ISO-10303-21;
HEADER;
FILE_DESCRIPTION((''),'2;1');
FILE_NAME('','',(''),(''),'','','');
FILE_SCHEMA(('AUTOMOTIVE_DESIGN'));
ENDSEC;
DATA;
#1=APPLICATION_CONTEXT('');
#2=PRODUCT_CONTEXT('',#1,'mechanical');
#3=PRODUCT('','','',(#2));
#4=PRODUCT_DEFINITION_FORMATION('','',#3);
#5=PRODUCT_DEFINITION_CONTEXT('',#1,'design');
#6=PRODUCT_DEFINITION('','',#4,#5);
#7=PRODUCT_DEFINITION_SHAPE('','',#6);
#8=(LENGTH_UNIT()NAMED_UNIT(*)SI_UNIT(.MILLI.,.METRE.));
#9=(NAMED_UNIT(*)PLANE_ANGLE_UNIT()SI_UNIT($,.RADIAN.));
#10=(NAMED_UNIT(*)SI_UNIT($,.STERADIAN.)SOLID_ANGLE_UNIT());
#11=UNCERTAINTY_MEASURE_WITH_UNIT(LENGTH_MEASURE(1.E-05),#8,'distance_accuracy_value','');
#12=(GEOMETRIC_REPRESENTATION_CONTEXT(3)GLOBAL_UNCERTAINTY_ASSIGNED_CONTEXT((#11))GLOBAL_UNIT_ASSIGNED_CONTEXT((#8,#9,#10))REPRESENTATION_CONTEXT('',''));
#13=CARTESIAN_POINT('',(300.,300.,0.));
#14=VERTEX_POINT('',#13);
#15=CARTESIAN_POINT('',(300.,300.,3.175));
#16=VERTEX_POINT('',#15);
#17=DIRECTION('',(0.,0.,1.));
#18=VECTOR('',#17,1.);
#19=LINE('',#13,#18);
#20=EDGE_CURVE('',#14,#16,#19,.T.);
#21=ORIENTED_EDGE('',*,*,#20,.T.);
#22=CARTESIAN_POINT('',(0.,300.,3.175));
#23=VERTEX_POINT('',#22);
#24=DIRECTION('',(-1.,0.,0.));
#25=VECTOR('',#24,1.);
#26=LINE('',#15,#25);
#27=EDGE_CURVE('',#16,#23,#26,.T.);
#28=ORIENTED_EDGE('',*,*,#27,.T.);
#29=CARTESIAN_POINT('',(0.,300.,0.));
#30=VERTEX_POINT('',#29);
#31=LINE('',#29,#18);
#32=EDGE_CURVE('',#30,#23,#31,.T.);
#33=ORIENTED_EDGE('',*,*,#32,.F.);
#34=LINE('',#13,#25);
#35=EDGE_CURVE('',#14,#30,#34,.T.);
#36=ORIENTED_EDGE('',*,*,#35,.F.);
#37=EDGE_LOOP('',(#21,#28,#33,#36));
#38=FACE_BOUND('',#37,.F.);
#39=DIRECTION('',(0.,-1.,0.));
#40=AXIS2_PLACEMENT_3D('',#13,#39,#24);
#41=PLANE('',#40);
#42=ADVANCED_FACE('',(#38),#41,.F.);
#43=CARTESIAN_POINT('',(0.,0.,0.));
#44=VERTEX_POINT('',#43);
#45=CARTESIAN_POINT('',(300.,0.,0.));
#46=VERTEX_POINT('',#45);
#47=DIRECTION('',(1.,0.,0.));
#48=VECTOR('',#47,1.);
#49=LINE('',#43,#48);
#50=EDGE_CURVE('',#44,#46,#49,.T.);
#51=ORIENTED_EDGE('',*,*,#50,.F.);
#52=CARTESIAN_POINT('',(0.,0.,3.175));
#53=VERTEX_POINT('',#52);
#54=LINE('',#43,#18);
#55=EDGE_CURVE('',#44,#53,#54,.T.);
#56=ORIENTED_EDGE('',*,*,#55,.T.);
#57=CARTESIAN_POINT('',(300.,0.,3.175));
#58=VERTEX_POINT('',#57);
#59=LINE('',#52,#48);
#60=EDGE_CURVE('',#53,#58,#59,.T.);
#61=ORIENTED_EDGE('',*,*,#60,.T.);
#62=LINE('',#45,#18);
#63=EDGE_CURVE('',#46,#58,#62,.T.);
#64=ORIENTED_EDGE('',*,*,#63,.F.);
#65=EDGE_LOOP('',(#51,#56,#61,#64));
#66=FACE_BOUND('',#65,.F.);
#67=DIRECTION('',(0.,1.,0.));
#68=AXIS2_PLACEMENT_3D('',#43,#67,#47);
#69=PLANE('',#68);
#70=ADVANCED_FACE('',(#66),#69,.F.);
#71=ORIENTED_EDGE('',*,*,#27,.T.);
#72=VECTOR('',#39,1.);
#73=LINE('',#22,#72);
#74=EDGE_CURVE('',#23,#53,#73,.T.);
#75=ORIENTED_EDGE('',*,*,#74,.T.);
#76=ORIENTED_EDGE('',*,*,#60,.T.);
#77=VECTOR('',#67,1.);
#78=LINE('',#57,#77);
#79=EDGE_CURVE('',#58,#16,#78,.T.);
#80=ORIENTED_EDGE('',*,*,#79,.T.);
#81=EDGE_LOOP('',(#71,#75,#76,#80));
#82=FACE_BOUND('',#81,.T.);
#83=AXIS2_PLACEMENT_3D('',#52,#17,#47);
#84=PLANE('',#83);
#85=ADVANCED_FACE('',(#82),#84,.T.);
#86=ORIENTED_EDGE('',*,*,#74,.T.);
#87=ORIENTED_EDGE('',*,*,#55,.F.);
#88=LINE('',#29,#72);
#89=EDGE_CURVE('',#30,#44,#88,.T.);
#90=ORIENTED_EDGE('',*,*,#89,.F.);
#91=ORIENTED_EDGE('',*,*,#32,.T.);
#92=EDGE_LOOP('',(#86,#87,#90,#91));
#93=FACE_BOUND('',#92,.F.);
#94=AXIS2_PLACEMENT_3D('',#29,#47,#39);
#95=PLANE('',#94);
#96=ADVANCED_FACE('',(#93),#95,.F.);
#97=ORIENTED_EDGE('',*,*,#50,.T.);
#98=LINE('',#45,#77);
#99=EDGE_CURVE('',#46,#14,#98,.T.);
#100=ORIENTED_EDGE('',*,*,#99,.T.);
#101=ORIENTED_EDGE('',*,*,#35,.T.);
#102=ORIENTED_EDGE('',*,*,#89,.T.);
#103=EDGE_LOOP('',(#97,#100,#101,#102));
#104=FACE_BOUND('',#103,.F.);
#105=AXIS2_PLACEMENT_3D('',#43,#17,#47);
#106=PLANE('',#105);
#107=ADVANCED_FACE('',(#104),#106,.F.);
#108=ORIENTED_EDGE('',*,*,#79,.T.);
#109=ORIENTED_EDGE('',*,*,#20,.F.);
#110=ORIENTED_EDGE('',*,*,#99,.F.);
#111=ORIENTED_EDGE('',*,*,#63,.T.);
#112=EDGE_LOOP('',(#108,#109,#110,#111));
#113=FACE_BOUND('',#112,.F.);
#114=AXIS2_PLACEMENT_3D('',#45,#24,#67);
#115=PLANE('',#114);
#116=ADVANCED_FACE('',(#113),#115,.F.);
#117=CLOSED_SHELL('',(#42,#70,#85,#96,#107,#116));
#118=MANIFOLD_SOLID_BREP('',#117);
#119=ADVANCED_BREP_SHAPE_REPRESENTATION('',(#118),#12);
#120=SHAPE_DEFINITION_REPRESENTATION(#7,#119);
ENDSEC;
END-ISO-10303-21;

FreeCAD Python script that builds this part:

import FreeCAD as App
import Part
import Sketcher
from FreeCAD import Vector


def add_polygon(sketch, points):
    """Adds a closed chain of lines whose ends are joined by coincident constraints."""
    first, n = sketch.GeometryCount, len(points)
    for a, b in zip(points, points[1:] + points[:1]):
        sketch.addGeometry(Part.LineSegment(App.Vector(*a, 0), App.Vector(*b, 0)), False)
    for i in range(n):
        sketch.addConstraint(Sketcher.Constraint("Coincident", first + i, 2, first + (i + 1) % n, 1))

doc = App.newDocument("Part")
body = doc.addObject("PartDesign::Body", "Body")

# Sketch on XY plane
sketch1 = body.newObject("Sketcher::SketchObject", "Sketch")
sketch1.AttachmentSupport = (doc.getObject("XY_Plane"), [""])
sketch1.MapMode = "FlatFace"
add_polygon(sketch1, [(0, 300), (0, 0), (300, 0), (300, 300)])  # lines 0-3
sketch1.addConstraint([
    Sketcher.Constraint("Vertical", 0),
    Sketcher.Constraint("Horizontal", 1),
    Sketcher.Constraint("Vertical", 2),
    Sketcher.Constraint("Horizontal", 3),
    Sketcher.Constraint("Coincident", 0, 2, -1, 1),
    Sketcher.Constraint("Equal", 3, 0),
    Sketcher.Constraint("DistanceX", 1, 1, 1, 2, 300.0),
])
pad1 = body.newObject("PartDesign::Pad", "Pad")
pad1.Profile = sketch1
pad1.Length = 3.175

doc.recompute()
